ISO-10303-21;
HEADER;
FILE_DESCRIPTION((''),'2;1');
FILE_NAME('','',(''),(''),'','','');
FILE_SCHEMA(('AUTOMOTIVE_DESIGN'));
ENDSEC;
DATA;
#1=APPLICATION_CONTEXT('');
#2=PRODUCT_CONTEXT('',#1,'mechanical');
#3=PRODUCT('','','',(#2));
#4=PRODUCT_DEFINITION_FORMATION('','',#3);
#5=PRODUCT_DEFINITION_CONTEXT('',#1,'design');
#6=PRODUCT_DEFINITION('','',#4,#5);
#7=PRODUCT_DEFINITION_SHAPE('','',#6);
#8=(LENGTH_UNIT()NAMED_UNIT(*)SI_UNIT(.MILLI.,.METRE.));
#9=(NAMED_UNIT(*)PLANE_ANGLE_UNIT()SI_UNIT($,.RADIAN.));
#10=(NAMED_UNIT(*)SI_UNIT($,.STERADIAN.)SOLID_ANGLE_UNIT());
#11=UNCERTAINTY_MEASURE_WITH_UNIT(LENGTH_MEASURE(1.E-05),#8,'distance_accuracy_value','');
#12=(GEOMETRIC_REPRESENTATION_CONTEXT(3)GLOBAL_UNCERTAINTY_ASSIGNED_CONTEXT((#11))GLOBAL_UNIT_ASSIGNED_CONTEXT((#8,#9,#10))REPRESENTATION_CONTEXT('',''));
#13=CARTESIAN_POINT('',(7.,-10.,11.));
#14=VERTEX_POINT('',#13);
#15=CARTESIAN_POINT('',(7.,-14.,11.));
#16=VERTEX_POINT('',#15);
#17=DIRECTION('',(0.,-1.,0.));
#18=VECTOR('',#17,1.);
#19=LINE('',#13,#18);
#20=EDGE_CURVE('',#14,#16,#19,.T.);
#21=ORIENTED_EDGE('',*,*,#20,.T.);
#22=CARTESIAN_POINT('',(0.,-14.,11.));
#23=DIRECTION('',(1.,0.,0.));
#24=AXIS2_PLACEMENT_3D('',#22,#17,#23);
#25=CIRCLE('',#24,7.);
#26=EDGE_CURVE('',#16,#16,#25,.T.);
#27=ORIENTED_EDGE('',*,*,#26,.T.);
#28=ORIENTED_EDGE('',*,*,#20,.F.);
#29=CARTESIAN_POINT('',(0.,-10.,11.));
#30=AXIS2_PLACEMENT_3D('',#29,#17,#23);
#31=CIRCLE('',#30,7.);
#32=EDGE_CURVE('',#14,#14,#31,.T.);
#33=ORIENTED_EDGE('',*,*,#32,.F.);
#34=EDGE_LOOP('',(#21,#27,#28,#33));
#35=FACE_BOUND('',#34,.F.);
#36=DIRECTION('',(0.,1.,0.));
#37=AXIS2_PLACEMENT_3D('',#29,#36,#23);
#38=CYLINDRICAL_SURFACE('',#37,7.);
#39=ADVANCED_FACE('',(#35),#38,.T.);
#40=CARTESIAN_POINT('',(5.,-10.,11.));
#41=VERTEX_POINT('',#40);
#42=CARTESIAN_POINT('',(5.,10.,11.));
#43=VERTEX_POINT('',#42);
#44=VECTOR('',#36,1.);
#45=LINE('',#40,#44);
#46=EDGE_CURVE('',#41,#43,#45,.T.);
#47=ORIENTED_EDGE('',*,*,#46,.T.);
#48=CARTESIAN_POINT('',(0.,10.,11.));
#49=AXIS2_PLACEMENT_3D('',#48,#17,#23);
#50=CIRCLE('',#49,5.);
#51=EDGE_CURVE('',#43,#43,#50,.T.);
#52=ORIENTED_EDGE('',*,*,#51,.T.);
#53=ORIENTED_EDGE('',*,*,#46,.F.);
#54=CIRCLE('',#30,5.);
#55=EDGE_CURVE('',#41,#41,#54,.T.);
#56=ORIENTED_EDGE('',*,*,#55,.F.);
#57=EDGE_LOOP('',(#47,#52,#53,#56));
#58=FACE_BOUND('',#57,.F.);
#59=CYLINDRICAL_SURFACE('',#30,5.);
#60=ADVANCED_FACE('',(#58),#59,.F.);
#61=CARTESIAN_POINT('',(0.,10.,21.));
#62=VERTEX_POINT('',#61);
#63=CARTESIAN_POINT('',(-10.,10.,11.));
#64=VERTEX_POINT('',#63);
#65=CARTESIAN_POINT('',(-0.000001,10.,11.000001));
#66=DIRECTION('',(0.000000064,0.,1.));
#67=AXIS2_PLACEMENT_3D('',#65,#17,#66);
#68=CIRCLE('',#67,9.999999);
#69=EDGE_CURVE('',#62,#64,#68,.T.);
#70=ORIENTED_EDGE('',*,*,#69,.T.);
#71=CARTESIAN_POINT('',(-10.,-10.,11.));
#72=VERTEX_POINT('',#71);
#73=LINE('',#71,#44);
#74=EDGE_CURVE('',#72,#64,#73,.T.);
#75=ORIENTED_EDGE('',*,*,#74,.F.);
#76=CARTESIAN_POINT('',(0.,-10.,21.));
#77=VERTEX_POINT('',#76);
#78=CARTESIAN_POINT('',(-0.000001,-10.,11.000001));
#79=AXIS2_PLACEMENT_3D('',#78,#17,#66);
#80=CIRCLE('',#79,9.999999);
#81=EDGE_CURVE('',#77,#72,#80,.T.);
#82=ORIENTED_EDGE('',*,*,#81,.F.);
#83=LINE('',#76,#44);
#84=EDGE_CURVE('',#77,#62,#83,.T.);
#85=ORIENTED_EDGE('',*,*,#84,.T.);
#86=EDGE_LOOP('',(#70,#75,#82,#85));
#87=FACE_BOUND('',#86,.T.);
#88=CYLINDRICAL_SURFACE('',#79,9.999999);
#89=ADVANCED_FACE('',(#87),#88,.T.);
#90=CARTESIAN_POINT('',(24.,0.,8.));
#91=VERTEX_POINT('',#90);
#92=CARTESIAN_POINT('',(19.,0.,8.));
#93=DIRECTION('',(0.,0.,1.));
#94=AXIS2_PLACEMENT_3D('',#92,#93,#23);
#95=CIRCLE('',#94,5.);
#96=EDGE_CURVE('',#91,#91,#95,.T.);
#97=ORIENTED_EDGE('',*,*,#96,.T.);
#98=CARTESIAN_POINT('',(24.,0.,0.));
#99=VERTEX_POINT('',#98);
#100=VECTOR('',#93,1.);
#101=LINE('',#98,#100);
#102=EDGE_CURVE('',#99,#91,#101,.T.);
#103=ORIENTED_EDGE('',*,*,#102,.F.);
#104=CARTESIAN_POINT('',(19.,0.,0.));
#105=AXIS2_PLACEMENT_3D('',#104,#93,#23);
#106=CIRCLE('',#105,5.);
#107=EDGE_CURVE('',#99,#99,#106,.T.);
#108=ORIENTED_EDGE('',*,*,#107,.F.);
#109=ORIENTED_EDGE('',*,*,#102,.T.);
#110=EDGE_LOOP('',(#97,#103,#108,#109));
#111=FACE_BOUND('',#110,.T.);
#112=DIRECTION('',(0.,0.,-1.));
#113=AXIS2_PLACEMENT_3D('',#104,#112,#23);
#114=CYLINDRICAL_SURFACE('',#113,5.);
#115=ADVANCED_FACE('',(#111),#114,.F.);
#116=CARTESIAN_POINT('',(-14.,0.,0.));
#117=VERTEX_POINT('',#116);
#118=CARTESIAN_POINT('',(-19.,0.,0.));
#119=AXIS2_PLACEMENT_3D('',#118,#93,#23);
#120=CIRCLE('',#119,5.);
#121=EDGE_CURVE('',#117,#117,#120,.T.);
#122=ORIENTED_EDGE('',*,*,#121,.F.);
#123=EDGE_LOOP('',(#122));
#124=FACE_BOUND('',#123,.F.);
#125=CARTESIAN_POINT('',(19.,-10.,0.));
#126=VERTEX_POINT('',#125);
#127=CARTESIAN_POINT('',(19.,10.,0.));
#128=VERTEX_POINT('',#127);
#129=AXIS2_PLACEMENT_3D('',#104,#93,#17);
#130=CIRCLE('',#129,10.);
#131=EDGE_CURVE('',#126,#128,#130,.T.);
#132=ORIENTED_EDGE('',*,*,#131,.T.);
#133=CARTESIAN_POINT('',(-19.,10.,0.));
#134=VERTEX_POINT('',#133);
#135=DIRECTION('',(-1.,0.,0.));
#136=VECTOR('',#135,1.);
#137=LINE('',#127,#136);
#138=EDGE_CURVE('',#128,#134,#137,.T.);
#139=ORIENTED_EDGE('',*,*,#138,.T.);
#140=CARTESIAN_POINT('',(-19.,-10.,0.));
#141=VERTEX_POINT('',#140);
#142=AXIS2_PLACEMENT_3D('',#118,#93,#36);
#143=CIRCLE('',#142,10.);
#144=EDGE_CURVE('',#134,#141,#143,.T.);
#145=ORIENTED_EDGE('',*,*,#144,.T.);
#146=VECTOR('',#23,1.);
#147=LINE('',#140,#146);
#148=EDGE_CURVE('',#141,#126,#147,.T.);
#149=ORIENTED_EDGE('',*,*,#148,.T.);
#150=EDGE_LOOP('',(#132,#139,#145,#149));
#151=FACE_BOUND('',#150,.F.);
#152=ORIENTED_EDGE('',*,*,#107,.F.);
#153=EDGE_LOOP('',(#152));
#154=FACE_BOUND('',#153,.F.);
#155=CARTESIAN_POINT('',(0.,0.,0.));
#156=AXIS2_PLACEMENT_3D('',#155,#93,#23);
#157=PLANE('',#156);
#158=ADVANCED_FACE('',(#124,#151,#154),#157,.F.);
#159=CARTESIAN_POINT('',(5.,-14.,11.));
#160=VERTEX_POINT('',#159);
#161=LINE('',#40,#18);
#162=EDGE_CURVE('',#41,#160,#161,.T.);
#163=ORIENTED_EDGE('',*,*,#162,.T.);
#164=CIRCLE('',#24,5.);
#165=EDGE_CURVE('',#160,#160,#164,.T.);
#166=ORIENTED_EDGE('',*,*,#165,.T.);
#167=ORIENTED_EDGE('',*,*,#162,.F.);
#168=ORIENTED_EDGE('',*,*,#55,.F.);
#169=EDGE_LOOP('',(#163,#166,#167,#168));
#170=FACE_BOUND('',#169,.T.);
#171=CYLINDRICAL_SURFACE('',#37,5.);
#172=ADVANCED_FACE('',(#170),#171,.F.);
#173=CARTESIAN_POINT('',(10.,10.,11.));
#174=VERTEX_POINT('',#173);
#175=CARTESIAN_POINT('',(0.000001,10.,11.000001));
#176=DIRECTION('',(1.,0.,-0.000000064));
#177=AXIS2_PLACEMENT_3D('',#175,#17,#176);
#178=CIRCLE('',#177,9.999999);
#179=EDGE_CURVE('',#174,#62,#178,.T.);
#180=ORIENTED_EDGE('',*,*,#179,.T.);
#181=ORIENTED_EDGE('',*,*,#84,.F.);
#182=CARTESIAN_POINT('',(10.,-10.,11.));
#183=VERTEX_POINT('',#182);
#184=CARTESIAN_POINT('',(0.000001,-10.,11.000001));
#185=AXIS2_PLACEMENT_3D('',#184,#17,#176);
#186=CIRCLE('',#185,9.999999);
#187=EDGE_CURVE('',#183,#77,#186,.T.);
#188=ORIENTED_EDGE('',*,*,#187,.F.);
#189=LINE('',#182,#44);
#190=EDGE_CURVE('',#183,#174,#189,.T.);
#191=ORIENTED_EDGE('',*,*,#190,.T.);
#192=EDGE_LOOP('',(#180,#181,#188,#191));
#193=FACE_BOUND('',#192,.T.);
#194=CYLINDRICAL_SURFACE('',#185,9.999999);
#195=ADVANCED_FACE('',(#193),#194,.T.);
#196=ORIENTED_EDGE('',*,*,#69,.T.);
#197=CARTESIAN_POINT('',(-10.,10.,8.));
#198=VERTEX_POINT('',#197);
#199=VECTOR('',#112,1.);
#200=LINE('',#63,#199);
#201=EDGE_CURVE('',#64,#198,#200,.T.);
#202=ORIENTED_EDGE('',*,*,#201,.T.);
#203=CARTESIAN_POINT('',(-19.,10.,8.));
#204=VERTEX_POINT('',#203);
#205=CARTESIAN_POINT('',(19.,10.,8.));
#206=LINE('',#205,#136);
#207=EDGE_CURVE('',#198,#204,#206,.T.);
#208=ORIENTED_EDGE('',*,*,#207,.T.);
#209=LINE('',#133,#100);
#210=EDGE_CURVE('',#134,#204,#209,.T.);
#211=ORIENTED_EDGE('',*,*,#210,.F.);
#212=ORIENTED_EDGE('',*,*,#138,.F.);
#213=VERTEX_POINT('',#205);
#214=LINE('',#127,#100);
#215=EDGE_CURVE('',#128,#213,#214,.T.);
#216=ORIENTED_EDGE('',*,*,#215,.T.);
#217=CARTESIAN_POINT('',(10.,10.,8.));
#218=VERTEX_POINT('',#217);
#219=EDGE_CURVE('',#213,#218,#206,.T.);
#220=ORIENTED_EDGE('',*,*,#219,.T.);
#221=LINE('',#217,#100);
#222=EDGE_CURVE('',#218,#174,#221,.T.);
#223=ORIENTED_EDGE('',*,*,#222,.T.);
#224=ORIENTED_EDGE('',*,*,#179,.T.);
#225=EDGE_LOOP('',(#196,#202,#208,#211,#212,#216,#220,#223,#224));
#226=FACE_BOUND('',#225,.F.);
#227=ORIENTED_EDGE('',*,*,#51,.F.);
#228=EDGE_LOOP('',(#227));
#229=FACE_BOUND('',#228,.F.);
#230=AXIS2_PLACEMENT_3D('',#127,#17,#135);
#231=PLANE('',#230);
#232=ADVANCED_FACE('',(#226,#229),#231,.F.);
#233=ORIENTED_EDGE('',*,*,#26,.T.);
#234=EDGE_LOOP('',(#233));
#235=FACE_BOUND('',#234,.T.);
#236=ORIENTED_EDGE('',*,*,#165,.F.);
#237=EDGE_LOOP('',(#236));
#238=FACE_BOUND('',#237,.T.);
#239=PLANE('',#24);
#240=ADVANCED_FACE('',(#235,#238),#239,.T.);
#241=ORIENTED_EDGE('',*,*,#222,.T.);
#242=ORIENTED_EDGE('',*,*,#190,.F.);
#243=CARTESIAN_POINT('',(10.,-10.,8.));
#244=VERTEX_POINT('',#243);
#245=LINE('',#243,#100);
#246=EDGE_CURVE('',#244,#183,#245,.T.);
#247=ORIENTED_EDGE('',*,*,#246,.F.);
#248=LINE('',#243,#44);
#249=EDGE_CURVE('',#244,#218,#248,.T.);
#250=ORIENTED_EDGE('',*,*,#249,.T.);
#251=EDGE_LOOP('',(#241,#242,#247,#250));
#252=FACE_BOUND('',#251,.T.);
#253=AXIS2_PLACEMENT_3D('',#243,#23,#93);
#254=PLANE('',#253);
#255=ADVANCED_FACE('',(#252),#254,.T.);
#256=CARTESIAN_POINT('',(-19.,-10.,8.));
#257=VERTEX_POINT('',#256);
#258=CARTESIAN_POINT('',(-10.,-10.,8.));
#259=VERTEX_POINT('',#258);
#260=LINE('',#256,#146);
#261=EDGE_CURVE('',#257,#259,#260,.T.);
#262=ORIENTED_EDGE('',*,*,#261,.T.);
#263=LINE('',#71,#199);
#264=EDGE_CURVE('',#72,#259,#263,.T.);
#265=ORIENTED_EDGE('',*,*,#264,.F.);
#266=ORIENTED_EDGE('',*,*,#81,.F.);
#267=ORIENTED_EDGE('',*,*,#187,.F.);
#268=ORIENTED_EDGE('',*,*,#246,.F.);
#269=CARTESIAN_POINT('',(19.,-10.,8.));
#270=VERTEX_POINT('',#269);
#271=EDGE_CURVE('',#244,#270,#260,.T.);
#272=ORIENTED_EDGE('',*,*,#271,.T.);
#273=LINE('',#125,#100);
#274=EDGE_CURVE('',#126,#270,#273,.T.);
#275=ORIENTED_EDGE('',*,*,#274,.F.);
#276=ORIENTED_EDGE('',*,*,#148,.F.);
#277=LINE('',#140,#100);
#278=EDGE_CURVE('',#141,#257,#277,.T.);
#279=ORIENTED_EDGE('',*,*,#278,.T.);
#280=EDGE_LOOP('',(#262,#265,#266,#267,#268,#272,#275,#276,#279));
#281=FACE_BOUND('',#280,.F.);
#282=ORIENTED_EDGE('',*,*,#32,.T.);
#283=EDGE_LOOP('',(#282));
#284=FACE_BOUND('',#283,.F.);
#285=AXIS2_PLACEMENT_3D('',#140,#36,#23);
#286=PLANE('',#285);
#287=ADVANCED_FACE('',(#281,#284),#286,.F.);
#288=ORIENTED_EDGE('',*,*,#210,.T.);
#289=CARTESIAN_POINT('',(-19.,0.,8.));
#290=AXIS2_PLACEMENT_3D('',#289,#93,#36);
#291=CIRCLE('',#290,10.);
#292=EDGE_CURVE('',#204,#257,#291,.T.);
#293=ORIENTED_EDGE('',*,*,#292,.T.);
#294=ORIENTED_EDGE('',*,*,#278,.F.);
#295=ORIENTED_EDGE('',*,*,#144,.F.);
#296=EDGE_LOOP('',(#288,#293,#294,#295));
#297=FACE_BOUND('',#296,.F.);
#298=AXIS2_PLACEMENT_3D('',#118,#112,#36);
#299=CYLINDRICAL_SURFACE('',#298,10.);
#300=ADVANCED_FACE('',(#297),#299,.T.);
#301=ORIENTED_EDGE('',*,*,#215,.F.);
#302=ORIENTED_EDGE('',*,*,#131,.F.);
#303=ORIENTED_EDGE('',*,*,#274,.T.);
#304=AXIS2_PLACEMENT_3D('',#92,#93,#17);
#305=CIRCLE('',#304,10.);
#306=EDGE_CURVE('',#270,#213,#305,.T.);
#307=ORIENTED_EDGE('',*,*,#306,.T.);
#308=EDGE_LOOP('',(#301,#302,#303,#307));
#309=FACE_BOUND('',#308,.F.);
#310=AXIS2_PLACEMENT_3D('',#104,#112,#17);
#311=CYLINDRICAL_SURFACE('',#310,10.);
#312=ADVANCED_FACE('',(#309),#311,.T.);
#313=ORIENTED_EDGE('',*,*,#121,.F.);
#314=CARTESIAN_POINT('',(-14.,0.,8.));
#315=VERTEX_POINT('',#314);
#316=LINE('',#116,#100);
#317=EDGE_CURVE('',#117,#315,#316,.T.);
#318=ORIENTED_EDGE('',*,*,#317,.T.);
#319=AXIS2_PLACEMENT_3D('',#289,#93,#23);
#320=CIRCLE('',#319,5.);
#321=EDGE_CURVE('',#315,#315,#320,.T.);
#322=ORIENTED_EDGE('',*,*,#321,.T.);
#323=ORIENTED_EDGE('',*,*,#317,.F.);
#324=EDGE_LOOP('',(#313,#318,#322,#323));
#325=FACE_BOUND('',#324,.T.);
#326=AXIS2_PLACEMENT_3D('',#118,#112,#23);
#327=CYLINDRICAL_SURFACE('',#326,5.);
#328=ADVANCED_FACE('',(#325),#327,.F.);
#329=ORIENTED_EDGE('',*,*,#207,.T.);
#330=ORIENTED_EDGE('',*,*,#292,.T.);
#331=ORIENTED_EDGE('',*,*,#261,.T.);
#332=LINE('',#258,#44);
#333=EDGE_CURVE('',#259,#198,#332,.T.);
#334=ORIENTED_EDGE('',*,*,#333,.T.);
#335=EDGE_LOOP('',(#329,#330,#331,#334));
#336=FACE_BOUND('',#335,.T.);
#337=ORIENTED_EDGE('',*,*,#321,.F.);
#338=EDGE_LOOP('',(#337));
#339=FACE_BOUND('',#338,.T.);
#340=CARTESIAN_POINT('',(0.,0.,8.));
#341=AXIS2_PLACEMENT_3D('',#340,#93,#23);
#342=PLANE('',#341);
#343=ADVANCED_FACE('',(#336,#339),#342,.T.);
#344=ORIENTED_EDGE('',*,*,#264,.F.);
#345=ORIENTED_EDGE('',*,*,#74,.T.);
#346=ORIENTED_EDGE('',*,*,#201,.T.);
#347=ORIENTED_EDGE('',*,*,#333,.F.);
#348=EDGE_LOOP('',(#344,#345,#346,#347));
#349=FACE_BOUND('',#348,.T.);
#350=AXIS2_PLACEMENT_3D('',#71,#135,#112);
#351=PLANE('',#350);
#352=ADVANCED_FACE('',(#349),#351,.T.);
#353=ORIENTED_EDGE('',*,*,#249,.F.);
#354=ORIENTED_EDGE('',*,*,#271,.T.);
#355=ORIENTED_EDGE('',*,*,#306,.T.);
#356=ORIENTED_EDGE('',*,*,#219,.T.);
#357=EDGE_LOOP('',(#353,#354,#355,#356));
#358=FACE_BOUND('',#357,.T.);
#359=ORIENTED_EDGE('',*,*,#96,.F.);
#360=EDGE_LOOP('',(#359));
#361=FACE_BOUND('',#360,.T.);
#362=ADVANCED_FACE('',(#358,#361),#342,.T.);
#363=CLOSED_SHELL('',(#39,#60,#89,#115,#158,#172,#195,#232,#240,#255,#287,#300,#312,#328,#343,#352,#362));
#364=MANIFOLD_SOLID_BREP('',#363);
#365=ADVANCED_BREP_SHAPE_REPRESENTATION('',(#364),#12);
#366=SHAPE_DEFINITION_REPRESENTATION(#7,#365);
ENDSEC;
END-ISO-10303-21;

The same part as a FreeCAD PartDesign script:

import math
import FreeCAD as App
import Part
import Sketcher

doc = App.newDocument("Part")
body = doc.addObject("PartDesign::Body", "Body")

sketch1 = body.newObject("Sketcher::SketchObject", "Sketch")
sketch1.AttachmentSupport = (doc.getObject("XY_Plane"), [""])
sketch1.MapMode = "FlatFace"
sketch1.addGeometry(Part.ArcOfCircle(Part.Circle(App.Vector(-19, 0, 0), App.Vector(0, 0, 1), 10), math.radians(90), math.radians(270)), False)
sketch1.addGeometry(Part.LineSegment(App.Vector(-19, -10, 0), App.Vector(19, -10, 0)), False)
sketch1.addGeometry(Part.ArcOfCircle(Part.Circle(App.Vector(19, 0, 0), App.Vector(0, 0, 1), 10), math.radians(-90), math.radians(90)), False)
sketch1.addGeometry(Part.LineSegment(App.Vector(19, 10, 0), App.Vector(-19, 10, 0)), False)
sketch1.addGeometry(Part.Circle(App.Vector(-19, 0, 0), App.Vector(0, 0, 1), 5), False)
sketch1.addGeometry(Part.Circle(App.Vector(19, 0, 0), App.Vector(0, 0, 1), 5), False)
sketch1.addConstraint(Sketcher.Constraint("Tangent", 0, 2, 1, 1))
sketch1.addConstraint(Sketcher.Constraint("Tangent", 1, 2, 2, 1))
sketch1.addConstraint(Sketcher.Constraint("Tangent", 2, 2, 3, 1))
sketch1.addConstraint(Sketcher.Constraint("Tangent", 3, 2, 0, 1))
sketch1.addConstraint(Sketcher.Constraint("Horizontal", 1))
sketch1.addConstraint(Sketcher.Constraint("Horizontal", 3))
sketch1.addConstraint(Sketcher.Constraint("Coincident", 4, 3, 0, 3))
sketch1.addConstraint(Sketcher.Constraint("Coincident", 5, 3, 2, 3))
sketch1.addConstraint(Sketcher.Constraint("Equal", 4, 5))
sketch1.addConstraint(Sketcher.Constraint("Symmetric", 0, 3, 2, 3, -1, 1))
sketch1.addConstraint(Sketcher.Constraint("Diameter", 4, 10.0))
sketch1.addConstraint(Sketcher.Constraint("Radius", 0, 10.0))
sketch1.addConstraint(Sketcher.Constraint("DistanceX", 1, 1, 1, 2, 38.0))
pad1 = body.newObject("PartDesign::Pad", "Pad")
pad1.Profile = sketch1
pad1.Length = 8

sketch2 = body.newObject("Sketcher::SketchObject", "Sketch001")
sketch2.AttachmentSupport = (doc.getObject("XZ_Plane"), [""])
sketch2.MapMode = "FlatFace"
sketch2.AttachmentOffset = App.Placement(App.Vector(0, 0, 10), App.Rotation())
sketch2.addGeometry(Part.LineSegment(App.Vector(-10, 11, 0), App.Vector(-10, 8, 0)), False)
sketch2.addGeometry(Part.LineSegment(App.Vector(-10, 8, 0), App.Vector(10, 8, 0)), False)
sketch2.addGeometry(Part.LineSegment(App.Vector(10, 8, 0), App.Vector(10, 11, 0)), False)
sketch2.addGeometry(Part.ArcOfCircle(Part.Circle(App.Vector(0.000001, 11.000001, 0), App.Vector(0, 0, 1), 9.999999), math.radians(-0.000004), math.radians(90.000004)), False)
sketch2.addGeometry(Part.ArcOfCircle(Part.Circle(App.Vector(-0.000001, 11.000001, 0), App.Vector(0, 0, 1), 9.999999), math.radians(89.999996), math.radians(180.000004)), False)
sketch2.addConstraint(Sketcher.Constraint("Coincident", 0, 2, 1, 1))
sketch2.addConstraint(Sketcher.Constraint("Coincident", 1, 2, 2, 1))
sketch2.addConstraint(Sketcher.Constraint("Tangent", 2, 2, 3, 1))
sketch2.addConstraint(Sketcher.Constraint("Tangent", 3, 2, 4, 1))
sketch2.addConstraint(Sketcher.Constraint("Tangent", 4, 2, 0, 1))
sketch2.addConstraint(Sketcher.Constraint("Vertical", 0))
sketch2.addConstraint(Sketcher.Constraint("Horizontal", 1))
sketch2.addConstraint(Sketcher.Constraint("Vertical", 2))
sketch2.addConstraint(Sketcher.Constraint("Equal", 3, 4))
sketch2.addConstraint(Sketcher.Constraint("PointOnObject", 3, 3, -2))
sketch2.addConstraint(Sketcher.Constraint("PointOnObject", 3, 2, -2))
sketch2.addConstraint(Sketcher.Constraint("Radius", 3, 9.999999))
sketch2.addConstraint(Sketcher.Constraint("DistanceY", 0, 2, 0, 1, 3.0))
sketch2.addConstraint(Sketcher.Constraint("DistanceY", -1, 1, 3, 3, 11.000001))
pad2 = body.newObject("PartDesign::Pad", "Pad001")
pad2.Profile = sketch2
pad2.Length = 20
pad2.Reversed = True

sketch3 = body.newObject("Sketcher::SketchObject", "Sketch002")
sketch3.AttachmentSupport = (doc.getObject("XZ_Plane"), [""])
sketch3.MapMode = "FlatFace"
sketch3.AttachmentOffset = App.Placement(App.Vector(0, 0, 10), App.Rotation())
sketch3.addGeometry(Part.Circle(App.Vector(0, 11, 0), App.Vector(0, 0, 1), 7), False)
sketch3.addGeometry(Part.Circle(App.Vector(0, 11, 0), App.Vector(0, 0, 1), 5), False)
sketch3.addConstraint(Sketcher.Constraint("Coincident", 1, 3, 0, 3))
sketch3.addConstraint(Sketcher.Constraint("PointOnObject", 0, 3, -2))
sketch3.addConstraint(Sketcher.Constraint("Diameter", 0, 14.0))
sketch3.addConstraint(Sketcher.Constraint("Diameter", 1, 10.0))
sketch3.addConstraint(Sketcher.Constraint("DistanceY", -1, 1, 0, 3, 11.0))
pad3 = body.newObject("PartDesign::Pad", "Pad002")
pad3.Profile = sketch3
pad3.Length = 4

sketch4 = body.newObject("Sketcher::SketchObject", "Sketch003")
sketch4.AttachmentSupport = (doc.getObject("XZ_Plane"), [""])
sketch4.MapMode = "FlatFace"
sketch4.AttachmentOffset = App.Placement(App.Vector(0, 0, 10), App.Rotation())
sketch4.addGeometry(Part.Circle(App.Vector(0, 11, 0), App.Vector(0, 0, 1), 5), False)
sketch4.addConstraint(Sketcher.Constraint("PointOnObject", 0, 3, -2))
sketch4.addConstraint(Sketcher.Constraint("Diameter", 0, 10.0))
sketch4.addConstraint(Sketcher.Constraint("DistanceY", -1, 1, 0, 3, 11.0))
pocket1 = body.newObject("PartDesign::Pocket", "Pocket")
pocket1.Profile = sketch4
pocket1.Type = "ThroughAll"

doc.recompute()
